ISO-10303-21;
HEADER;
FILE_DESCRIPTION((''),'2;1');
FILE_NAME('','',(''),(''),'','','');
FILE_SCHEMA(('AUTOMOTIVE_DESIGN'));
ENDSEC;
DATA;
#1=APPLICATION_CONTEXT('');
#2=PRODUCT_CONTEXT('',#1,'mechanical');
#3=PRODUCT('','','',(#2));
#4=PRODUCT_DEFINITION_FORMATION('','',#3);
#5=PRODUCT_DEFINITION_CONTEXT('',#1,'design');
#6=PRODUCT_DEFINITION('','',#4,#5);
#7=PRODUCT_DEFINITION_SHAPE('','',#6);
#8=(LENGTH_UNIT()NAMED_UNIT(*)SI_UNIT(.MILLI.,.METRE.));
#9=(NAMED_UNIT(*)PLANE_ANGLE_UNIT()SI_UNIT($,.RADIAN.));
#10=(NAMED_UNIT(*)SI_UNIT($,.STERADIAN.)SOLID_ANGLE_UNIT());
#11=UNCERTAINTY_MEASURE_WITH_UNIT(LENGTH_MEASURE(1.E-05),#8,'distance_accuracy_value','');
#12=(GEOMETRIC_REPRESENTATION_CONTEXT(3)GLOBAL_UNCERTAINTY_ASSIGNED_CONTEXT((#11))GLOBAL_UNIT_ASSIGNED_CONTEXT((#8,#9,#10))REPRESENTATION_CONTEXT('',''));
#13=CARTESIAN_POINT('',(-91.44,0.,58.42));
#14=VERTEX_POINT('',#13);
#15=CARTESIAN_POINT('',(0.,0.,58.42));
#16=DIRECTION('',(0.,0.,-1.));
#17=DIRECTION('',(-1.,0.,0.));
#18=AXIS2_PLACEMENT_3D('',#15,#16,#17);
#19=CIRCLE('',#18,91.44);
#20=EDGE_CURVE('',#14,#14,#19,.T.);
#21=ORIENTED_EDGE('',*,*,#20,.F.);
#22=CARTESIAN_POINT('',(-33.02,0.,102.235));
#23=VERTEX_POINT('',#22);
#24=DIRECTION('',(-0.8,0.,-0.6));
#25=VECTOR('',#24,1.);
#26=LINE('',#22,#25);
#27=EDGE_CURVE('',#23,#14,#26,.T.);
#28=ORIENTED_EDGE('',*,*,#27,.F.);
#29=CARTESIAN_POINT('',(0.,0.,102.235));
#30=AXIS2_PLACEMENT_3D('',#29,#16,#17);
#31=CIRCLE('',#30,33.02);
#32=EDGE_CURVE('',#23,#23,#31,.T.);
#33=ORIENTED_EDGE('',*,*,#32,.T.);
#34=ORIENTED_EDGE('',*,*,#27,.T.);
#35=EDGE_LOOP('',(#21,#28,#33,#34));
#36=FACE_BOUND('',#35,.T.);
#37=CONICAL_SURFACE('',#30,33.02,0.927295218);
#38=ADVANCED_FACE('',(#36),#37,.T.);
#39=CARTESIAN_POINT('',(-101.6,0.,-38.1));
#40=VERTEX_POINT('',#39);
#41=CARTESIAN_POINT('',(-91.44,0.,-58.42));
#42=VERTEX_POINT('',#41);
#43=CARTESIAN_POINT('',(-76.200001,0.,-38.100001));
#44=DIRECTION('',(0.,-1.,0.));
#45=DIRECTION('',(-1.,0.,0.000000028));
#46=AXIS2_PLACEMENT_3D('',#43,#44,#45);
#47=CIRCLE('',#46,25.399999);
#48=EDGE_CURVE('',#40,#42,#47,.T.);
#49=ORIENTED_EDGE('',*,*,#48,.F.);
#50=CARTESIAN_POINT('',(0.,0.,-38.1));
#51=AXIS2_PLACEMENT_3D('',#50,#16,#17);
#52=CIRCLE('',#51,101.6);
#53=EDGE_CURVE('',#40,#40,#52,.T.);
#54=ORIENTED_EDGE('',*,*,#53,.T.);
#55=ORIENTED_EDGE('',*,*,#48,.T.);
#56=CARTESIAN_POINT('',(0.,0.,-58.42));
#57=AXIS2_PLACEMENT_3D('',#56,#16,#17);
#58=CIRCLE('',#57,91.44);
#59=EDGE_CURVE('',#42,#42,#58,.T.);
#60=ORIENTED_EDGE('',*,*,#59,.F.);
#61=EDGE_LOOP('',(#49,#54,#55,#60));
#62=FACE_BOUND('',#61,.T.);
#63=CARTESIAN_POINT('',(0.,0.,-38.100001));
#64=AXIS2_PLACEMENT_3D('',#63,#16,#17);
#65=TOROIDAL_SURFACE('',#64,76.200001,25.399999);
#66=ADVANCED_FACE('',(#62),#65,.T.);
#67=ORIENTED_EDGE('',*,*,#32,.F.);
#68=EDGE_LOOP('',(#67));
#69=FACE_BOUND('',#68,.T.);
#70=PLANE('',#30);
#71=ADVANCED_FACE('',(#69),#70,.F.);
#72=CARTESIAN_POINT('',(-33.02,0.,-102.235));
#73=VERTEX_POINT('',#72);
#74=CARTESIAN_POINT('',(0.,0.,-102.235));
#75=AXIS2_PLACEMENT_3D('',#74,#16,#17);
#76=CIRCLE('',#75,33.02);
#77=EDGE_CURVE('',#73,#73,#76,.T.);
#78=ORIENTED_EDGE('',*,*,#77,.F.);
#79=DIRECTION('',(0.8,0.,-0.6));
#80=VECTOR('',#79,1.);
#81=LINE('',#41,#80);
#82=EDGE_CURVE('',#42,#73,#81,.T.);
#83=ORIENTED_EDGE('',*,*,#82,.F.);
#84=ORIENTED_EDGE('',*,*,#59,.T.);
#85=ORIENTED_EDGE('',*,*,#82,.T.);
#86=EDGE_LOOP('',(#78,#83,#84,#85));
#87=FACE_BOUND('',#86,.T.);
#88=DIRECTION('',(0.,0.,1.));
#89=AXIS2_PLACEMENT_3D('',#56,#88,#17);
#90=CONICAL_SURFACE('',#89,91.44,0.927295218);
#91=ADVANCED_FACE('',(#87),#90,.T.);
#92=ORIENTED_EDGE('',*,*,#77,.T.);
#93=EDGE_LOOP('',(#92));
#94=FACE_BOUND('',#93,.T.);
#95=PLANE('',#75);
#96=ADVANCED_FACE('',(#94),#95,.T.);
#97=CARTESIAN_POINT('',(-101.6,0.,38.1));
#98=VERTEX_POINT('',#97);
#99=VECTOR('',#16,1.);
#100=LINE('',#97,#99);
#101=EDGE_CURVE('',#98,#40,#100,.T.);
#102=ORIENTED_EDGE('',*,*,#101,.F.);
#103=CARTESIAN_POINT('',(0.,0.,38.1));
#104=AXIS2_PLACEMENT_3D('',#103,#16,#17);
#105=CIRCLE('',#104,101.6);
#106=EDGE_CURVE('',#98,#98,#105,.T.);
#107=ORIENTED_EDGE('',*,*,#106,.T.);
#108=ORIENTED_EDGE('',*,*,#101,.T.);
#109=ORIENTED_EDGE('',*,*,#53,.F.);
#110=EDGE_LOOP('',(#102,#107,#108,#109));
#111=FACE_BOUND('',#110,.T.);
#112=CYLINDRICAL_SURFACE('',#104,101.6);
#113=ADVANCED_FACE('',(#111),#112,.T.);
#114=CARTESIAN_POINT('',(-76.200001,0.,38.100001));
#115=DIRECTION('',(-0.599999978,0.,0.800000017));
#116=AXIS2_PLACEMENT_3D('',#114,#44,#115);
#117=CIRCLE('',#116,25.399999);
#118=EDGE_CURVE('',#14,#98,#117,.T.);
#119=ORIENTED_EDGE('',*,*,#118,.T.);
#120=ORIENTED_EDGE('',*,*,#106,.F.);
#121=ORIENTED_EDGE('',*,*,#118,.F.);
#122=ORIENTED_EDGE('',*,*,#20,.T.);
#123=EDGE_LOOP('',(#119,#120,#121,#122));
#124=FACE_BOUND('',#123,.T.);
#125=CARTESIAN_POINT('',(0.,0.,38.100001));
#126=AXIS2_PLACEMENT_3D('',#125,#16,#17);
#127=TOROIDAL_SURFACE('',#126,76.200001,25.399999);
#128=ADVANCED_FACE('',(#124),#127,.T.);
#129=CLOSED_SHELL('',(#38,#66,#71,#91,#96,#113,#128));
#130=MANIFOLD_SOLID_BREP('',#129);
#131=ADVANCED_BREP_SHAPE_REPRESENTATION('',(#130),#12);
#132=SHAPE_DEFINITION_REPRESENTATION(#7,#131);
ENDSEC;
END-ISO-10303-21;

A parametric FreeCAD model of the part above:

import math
import FreeCAD as App
import Part
import Sketcher

V = App.Vector
Q = App.Units.Quantity

doc = App.newDocument("Part")
body = doc.addObject("PartDesign::Body", "Body")

# Sketch on XZ plane
sketch1 = body.newObject("Sketcher::SketchObject", "Sketch")
sketch1.AttachmentSupport = (doc.getObject("XZ_Plane"), [""])
sketch1.MapMode = "FlatFace"
sketch1.addGeometry(Part.ArcOfCircle(Part.Circle(V(-76.200001, 38.100001, 0), V(0, 0, 1), 25.399999), math.radians(126.869896), math.radians(180.000002)), False)
sketch1.addGeometry(Part.LineSegment(V(-101.6, 38.1, 0), V(-101.6, -38.1, 0)), False)
sketch1.addGeometry(Part.ArcOfCircle(Part.Circle(V(-76.200001, -38.100001, 0), V(0, 0, 1), 25.399999), math.radians(179.999998), math.radians(233.130104)), False)
sketch1.addGeometry(Part.LineSegment(V(-91.44, -58.42, 0), V(-33.02, -102.235, 0)), False)
sketch1.addGeometry(Part.LineSegment(V(-33.02, -102.235, 0), V(0, -102.235, 0)), False)
sketch1.addGeometry(Part.LineSegment(V(0, -102.235, 0), V(0, 102.235, 0)), False)
sketch1.addGeometry(Part.LineSegment(V(0, 102.235, 0), V(-33.02, 102.235, 0)), False)
sketch1.addGeometry(Part.LineSegment(V(-33.02, 102.235, 0), V(-91.44, 58.42, 0)), False)
sketch1.addConstraint(Sketcher.Constraint("Tangent", 0, 2, 1, 1))
sketch1.addConstraint(Sketcher.Constraint("Tangent", 1, 2, 2, 1))
sketch1.addConstraint(Sketcher.Constraint("Tangent", 2, 2, 3, 1))
sketch1.addConstraint(Sketcher.Constraint("Coincident", 3, 2, 4, 1))
sketch1.addConstraint(Sketcher.Constraint("Coincident", 4, 2, 5, 1))
sketch1.addConstraint(Sketcher.Constraint("Coincident", 5, 2, 6, 1))
sketch1.addConstraint(Sketcher.Constraint("Coincident", 6, 2, 7, 1))
sketch1.addConstraint(Sketcher.Constraint("Tangent", 7, 2, 0, 1))
sketch1.addConstraint(Sketcher.Constraint("Vertical", 1))
sketch1.addConstraint(Sketcher.Constraint("Horizontal", 4))
sketch1.addConstraint(Sketcher.Constraint("Vertical", 5))
sketch1.addConstraint(Sketcher.Constraint("Horizontal", 6))
sketch1.addConstraint(Sketcher.Constraint("Equal", 0, 2))
sketch1.addConstraint(Sketcher.Constraint("Symmetric", 4, 2, 5, 2, -1, 1))
sketch1.addConstraint(Sketcher.Constraint("Symmetric", 2, 2, 7, 2, -1))
sketch1.addConstraint(Sketcher.Constraint("Radius", 0, Q("0.9999999 in")))
sketch1.addConstraint(Sketcher.Constraint("DistanceY", 1, 2, 1, 1, Q("3 in")))
sketch1.addConstraint(Sketcher.Constraint("DistanceX", 4, 1, 4, 2, Q("1.3 in")))
sketch1.addConstraint(Sketcher.Constraint("DistanceX", 0, 3, -1, 1, Q("3.0000001 in")))
sketch1.addConstraint(Sketcher.Constraint("DistanceY", 5, 1, 5, 2, Q("8.05 in")))
revolution = body.newObject("PartDesign::Revolution", "Revolution")
revolution.Profile = sketch1
revolution.ReferenceAxis = (sketch1, ["V_Axis"])
revolution.Angle = 360

doc.recompute()
